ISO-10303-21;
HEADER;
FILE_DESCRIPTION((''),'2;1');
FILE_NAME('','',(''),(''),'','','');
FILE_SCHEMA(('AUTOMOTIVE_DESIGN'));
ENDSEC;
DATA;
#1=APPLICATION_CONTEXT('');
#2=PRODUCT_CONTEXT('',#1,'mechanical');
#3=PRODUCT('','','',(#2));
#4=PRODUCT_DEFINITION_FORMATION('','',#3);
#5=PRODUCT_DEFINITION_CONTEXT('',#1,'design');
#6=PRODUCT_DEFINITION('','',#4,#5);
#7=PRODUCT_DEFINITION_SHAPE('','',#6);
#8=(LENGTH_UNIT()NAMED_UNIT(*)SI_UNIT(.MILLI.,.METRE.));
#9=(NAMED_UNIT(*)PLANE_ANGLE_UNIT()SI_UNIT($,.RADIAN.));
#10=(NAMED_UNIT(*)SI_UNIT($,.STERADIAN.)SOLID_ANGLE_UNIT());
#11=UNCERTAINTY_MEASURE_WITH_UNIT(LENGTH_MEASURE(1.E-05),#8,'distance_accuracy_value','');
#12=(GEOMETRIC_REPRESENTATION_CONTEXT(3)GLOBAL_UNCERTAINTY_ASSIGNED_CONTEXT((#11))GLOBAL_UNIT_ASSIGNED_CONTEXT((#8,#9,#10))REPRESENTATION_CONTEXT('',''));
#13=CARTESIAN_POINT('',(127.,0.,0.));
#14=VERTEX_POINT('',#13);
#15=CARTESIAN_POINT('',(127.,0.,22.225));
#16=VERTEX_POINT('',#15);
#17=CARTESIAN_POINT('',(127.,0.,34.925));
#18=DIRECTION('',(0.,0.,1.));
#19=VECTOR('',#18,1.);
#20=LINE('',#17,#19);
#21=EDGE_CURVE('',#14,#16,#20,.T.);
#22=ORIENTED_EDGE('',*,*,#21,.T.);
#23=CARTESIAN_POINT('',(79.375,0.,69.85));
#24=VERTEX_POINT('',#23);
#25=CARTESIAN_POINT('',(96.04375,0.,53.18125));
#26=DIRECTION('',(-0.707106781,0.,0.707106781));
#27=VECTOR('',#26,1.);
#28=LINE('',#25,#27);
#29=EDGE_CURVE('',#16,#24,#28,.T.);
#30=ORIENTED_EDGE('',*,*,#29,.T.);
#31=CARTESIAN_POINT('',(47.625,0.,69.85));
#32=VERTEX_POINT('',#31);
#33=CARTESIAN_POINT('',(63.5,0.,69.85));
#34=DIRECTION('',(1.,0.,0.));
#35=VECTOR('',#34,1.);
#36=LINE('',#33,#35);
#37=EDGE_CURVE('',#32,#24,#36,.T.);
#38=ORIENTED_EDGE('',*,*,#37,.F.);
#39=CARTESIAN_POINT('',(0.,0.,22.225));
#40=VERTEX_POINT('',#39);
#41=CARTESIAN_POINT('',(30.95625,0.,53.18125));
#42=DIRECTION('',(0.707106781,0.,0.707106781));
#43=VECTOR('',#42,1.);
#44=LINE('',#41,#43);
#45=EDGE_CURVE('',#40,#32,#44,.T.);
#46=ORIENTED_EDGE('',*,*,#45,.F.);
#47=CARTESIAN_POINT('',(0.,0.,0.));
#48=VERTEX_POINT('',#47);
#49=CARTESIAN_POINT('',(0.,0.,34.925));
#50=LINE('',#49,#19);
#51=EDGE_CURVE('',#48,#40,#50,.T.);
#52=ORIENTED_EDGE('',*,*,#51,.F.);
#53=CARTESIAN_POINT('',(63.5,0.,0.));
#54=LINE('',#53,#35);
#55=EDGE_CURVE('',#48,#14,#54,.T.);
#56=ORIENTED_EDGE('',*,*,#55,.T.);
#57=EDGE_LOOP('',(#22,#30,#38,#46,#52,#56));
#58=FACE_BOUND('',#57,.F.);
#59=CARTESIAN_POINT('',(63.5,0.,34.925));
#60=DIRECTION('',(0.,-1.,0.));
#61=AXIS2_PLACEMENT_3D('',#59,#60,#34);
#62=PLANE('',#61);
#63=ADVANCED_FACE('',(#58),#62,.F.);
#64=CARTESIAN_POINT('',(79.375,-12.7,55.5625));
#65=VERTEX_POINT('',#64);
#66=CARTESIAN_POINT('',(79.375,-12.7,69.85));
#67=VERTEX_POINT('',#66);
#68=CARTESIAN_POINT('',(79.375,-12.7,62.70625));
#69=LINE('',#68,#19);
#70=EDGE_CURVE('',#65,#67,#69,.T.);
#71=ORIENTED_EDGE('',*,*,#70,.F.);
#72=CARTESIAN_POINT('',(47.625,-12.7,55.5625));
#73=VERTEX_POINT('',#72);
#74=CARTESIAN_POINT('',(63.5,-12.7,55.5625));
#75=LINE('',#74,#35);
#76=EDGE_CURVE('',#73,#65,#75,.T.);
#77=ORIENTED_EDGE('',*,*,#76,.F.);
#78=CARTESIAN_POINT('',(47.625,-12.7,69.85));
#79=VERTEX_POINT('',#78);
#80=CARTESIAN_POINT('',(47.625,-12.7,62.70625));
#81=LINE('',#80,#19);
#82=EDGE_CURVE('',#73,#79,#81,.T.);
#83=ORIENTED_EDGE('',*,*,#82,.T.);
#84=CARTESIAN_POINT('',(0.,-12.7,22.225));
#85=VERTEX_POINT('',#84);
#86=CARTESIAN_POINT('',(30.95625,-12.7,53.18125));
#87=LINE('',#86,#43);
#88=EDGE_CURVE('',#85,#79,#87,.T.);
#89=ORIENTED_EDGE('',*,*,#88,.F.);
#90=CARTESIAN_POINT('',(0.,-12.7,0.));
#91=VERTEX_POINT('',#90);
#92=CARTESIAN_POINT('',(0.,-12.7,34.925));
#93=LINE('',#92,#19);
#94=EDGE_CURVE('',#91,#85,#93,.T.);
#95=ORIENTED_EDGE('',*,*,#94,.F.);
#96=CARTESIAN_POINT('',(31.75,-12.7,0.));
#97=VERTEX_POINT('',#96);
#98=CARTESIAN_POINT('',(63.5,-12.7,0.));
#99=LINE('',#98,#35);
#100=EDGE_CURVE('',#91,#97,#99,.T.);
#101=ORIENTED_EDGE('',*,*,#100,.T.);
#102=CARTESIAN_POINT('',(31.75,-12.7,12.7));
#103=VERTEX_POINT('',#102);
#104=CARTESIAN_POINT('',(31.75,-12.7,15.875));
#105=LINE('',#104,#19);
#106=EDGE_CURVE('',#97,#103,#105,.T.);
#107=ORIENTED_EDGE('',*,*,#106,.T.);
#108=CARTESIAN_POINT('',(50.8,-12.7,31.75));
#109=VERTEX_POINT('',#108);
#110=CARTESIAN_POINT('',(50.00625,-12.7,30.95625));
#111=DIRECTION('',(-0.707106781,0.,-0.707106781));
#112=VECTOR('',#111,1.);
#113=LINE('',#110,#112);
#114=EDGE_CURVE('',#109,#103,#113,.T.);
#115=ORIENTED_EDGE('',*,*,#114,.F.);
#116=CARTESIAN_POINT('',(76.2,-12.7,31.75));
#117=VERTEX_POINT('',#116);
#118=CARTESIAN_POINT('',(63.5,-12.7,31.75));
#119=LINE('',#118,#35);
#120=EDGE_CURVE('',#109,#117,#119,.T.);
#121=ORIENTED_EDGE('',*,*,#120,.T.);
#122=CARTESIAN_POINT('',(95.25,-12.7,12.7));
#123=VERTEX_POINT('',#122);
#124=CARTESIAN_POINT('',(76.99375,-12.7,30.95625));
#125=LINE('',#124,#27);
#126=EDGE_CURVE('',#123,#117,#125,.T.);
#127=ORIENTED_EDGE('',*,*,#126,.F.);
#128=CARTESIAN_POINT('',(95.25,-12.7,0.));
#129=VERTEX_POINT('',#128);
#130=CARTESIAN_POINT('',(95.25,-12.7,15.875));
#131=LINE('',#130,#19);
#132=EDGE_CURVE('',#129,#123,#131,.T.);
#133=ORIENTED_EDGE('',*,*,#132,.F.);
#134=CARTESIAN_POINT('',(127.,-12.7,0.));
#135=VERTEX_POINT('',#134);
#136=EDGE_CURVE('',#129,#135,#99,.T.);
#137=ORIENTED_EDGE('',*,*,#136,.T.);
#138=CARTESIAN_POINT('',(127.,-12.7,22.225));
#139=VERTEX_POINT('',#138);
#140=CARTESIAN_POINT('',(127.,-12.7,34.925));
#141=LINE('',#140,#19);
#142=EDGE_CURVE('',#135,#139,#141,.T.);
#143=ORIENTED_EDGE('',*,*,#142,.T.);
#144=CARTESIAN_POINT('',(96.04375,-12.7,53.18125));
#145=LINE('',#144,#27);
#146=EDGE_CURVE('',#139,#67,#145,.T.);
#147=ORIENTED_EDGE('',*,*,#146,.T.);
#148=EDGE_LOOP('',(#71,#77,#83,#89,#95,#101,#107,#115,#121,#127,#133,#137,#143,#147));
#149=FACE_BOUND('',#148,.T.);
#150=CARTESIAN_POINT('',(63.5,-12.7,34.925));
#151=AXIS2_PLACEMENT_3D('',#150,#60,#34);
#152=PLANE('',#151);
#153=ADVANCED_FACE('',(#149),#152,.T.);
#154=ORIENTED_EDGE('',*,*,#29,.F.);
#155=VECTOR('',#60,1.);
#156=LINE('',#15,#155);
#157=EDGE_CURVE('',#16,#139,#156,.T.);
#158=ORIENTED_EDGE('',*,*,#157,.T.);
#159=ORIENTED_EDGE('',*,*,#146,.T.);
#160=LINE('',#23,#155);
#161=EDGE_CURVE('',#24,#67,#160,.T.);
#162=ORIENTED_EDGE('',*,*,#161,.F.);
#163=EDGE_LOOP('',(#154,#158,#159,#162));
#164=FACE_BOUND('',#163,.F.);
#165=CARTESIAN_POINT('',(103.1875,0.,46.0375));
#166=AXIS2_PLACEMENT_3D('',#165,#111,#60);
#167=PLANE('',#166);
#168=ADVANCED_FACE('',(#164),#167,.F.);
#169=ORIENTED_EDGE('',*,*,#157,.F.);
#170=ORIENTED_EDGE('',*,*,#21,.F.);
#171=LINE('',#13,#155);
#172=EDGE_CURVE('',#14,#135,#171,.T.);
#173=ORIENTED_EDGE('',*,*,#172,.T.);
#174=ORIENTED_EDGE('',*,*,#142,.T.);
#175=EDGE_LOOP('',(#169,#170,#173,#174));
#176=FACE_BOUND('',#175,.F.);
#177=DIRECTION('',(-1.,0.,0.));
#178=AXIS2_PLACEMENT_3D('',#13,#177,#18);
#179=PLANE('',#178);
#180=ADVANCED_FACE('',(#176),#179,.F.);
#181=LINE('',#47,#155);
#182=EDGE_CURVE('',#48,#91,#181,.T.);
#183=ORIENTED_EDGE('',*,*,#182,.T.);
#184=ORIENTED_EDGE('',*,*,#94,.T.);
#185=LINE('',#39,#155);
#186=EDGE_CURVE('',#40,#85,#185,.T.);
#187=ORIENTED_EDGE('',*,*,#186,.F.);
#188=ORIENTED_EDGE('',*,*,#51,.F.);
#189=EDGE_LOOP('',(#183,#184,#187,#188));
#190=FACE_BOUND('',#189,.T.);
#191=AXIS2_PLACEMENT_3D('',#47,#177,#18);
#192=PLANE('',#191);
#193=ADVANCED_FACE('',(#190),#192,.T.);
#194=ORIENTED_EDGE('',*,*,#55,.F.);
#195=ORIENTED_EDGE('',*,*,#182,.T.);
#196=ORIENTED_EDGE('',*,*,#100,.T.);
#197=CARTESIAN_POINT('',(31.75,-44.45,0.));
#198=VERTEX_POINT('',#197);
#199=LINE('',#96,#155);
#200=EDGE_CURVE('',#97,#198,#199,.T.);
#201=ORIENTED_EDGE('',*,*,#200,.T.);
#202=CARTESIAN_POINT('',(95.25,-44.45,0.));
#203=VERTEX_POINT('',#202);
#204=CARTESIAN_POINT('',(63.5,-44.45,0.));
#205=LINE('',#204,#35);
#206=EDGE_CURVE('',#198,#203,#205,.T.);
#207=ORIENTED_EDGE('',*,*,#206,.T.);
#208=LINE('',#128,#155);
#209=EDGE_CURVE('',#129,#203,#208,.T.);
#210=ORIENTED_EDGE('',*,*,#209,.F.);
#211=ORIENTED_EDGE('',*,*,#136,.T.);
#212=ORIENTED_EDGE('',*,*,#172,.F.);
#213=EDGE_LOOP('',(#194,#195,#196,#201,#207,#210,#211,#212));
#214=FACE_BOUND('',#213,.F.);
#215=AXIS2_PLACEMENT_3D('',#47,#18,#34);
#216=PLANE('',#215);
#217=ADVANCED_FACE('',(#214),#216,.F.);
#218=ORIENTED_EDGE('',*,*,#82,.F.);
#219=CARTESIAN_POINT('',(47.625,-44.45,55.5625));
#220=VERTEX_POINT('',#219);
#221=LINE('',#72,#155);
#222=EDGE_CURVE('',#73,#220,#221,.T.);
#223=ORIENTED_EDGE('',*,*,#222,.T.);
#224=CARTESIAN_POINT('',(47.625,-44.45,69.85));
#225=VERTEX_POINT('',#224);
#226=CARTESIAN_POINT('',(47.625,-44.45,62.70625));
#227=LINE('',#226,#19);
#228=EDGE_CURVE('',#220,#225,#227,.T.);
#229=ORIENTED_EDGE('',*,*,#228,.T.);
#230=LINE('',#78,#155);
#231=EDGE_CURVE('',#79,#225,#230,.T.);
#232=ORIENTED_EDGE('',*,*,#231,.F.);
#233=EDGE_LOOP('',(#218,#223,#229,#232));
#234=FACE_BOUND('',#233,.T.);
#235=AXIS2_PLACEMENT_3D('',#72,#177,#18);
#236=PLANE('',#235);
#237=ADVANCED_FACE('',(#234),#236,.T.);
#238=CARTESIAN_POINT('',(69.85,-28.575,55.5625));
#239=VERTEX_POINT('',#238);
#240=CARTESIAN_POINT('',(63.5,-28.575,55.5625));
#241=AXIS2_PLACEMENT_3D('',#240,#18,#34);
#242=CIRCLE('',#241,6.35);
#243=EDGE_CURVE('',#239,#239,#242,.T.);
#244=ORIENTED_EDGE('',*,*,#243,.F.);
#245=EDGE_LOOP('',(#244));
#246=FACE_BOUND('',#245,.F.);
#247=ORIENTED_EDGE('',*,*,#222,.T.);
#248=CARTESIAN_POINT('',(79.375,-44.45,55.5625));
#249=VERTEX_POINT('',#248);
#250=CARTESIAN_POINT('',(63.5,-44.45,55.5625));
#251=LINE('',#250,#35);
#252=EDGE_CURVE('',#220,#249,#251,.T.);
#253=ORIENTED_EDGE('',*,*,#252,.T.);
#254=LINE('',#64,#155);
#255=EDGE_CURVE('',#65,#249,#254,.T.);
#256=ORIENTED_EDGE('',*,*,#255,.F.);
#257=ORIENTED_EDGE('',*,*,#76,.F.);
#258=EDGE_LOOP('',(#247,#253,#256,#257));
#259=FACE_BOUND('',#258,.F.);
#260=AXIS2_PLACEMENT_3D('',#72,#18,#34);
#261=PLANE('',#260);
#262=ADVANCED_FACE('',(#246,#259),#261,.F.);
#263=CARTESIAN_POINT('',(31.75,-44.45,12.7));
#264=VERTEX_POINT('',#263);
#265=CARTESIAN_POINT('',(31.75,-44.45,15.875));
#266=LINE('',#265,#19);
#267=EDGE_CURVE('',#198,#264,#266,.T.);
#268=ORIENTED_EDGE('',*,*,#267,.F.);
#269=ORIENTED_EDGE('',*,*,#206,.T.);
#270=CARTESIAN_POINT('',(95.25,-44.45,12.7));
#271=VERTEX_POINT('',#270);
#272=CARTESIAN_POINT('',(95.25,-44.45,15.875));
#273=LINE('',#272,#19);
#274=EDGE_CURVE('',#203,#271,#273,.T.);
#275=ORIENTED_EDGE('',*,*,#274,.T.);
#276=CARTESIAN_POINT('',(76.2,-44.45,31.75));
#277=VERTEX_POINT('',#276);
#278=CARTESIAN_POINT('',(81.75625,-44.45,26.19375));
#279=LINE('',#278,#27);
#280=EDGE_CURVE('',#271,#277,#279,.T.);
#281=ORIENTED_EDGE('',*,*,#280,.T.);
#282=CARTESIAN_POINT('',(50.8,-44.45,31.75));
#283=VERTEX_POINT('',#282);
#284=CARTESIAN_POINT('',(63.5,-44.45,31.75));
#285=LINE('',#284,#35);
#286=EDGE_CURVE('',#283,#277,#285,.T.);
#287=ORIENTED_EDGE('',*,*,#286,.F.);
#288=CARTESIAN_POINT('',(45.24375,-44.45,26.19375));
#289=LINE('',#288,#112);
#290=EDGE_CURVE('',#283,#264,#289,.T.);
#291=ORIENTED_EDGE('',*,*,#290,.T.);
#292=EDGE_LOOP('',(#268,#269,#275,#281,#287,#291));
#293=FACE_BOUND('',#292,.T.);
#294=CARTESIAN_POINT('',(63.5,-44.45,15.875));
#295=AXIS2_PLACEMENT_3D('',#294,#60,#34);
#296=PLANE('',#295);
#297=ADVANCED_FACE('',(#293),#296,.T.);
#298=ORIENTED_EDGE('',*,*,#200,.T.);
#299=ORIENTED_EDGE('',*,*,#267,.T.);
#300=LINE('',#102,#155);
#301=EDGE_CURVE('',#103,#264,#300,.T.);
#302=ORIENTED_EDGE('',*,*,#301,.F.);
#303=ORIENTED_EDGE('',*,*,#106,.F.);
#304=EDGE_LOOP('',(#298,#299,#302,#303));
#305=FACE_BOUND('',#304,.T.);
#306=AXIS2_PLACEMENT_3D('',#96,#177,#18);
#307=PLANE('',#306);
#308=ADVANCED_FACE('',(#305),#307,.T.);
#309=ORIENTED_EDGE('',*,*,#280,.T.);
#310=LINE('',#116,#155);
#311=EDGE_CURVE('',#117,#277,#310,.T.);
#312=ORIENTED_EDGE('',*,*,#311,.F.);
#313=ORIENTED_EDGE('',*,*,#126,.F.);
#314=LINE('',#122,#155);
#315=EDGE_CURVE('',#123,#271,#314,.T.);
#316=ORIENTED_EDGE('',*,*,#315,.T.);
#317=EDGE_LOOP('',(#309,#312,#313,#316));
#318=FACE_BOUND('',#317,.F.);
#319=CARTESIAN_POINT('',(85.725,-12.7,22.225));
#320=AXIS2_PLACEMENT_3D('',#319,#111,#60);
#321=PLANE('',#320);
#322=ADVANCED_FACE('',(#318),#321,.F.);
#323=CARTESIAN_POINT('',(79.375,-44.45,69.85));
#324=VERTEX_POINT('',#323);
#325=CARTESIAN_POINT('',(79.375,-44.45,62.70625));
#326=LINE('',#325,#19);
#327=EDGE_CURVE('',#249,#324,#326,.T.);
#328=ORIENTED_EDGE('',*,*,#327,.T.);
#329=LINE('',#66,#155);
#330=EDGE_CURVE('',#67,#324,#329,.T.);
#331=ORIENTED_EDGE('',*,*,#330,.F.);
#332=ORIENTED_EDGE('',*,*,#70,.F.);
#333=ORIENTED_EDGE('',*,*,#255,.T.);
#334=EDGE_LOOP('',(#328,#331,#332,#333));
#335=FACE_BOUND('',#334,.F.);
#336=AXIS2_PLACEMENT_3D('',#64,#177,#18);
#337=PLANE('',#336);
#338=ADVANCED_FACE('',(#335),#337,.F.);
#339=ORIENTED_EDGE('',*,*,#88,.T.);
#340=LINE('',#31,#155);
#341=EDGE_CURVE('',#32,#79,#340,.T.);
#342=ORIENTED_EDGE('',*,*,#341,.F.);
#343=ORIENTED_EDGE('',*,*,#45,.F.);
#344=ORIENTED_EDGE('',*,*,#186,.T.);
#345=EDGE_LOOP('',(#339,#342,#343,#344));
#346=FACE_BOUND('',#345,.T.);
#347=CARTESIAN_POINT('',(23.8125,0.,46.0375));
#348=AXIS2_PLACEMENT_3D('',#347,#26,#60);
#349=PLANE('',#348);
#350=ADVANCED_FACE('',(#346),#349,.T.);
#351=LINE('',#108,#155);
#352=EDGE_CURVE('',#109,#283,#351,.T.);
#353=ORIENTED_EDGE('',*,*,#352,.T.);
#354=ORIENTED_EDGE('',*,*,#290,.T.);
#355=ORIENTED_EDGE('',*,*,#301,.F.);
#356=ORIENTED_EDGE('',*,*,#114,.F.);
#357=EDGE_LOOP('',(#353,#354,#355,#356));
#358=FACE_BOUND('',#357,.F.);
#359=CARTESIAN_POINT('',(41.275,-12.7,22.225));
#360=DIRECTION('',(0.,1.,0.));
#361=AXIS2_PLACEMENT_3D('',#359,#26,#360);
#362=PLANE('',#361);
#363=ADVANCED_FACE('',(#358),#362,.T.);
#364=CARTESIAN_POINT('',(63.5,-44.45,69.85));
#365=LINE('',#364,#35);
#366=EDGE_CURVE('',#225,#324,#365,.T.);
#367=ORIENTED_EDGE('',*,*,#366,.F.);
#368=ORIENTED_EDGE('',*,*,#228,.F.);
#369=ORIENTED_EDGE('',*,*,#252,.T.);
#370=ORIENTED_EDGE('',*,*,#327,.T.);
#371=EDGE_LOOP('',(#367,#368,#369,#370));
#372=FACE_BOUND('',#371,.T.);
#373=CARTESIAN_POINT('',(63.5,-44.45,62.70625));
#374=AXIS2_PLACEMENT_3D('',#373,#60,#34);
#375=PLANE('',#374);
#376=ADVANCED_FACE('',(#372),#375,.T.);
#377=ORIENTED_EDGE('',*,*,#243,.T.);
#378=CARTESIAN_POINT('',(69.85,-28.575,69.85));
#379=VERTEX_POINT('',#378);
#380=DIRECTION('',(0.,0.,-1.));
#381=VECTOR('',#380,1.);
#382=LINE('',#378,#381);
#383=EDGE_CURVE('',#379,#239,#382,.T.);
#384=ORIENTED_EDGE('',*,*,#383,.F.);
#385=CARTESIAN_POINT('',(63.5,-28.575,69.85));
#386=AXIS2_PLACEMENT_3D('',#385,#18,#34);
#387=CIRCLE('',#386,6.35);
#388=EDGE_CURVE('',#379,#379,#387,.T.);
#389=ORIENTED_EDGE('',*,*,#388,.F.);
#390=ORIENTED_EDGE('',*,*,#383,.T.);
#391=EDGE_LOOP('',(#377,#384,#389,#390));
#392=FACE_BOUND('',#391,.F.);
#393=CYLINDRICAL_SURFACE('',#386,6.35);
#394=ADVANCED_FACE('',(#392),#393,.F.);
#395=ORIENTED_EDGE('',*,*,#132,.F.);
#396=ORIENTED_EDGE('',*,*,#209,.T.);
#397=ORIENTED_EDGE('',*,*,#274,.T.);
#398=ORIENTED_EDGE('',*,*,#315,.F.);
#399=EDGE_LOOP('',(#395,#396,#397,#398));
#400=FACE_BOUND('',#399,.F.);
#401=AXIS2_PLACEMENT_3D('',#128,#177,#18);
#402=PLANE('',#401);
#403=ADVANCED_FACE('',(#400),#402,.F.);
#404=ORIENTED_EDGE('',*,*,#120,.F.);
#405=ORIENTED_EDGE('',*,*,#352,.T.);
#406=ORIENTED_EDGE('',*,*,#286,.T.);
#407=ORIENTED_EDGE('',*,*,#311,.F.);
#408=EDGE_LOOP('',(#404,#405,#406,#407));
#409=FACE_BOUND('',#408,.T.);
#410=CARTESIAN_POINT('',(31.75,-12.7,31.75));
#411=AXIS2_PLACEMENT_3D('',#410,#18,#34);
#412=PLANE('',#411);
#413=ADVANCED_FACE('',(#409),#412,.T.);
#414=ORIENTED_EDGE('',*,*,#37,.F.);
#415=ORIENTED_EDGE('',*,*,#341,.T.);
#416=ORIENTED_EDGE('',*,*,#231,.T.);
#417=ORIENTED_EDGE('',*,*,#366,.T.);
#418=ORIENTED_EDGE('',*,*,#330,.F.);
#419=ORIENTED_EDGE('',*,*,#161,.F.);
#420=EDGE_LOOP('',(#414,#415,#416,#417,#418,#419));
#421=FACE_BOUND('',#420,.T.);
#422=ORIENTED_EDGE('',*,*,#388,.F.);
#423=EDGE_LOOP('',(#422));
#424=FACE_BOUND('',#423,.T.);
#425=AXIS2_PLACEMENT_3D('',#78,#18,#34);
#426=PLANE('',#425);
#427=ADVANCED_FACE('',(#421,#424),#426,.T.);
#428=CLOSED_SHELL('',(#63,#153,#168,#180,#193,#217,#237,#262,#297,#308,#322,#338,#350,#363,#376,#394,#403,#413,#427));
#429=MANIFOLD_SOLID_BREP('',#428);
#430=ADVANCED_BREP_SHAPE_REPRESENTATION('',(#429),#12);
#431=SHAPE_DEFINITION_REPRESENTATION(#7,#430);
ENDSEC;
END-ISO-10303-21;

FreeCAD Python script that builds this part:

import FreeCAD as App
import Part
import Sketcher
Q = App.Units.Quantity


def edges_at(feature, points):
    """Names of the edges that pass closest to the given points."""
    edges = feature.Shape.Edges
    near = lambda p: min(range(len(edges)), key=lambda i: edges[i].distToShape(Part.Vertex(*p))[0])
    return sorted({f"Edge{near(p) + 1}" for p in points})


def add_polygon(sketch, points):
    """Adds a closed chain of lines whose ends are joined by coincident constraints."""
    first, n = sketch.GeometryCount, len(points)
    for a, b in zip(points, points[1:] + points[:1]):
        sketch.addGeometry(Part.LineSegment(App.Vector(*a, 0), App.Vector(*b, 0)), False)
    for i in range(n):
        sketch.addConstraint(Sketcher.Constraint("Coincident", first + i, 2, first + (i + 1) % n, 1))

doc = App.newDocument("Part")
params = doc.addObject("Spreadsheet::Sheet", "Params")
for row, (alias, value) in enumerate([
    ("sketch1_width", "5 in"),
    ("sketch1_height", "2.75 in"),
    ("pad1_length", "0.5 in"),
    ("chamfer_size", "1.875 in"),
    ("sketch2_width", "2.5 in"),
    ("sketch2_width2", "1.25 in"),
    ("sketch2_height", "0.5625 in"),
    ("pad2_length", "1.25 in"),
    ("chamfer2_size", "0.75 in"),
    ("sketch3_diameter", "0.5 in"),
    ("pocket1_length", "0.5625 in"),
], start=1):
    params.set(f"A{row}", alias)
    params.set(f"B{row}", "=" + value)
    params.setAlias(f"B{row}", alias)

body = doc.addObject("PartDesign::Body", "Body")

# Sketch on XZ plane
sketch1 = body.newObject("Sketcher::SketchObject", "Sketch")
sketch1.AttachmentSupport = (doc.getObject("XZ_Plane"), [""])
sketch1.MapMode = "FlatFace"
add_polygon(sketch1, [(0, 69.85), (0, 0), (127, 0), (127, 69.85)])  # lines 0-3
sketch1.addConstraint(Sketcher.Constraint("Vertical", 0))
sketch1.addConstraint(Sketcher.Constraint("Horizontal", 1))
sketch1.addConstraint(Sketcher.Constraint("Vertical", 2))
sketch1.addConstraint(Sketcher.Constraint("Horizontal", 3))
sketch1.addConstraint(Sketcher.Constraint("Coincident", 0, 2, -1, 1))
sketch1.addConstraint(Sketcher.Constraint("DistanceX", 1, 1, 1, 2, Q("5 in")))
sketch1.addConstraint(Sketcher.Constraint("DistanceY", 0, 2, 0, 1, Q("2.75 in")))
sketch1.setExpression("Constraints[9]", "Params.sketch1_width")
sketch1.setExpression("Constraints[10]", "Params.sketch1_height")
pad1 = body.newObject("PartDesign::Pad", "Pad")
pad1.Profile = sketch1
pad1.setExpression("Length", "Params.pad1_length")
doc.recompute()

chamfer = body.newObject("PartDesign::Chamfer", "Chamfer")
chamfer.Base = (pad1, edges_at(pad1, [(0, -6.35, 69.85), (127, -6.35, 69.85)]))
chamfer.setExpression("Size", "Params.chamfer_size")

# Sketch on XZ plane
sketch2 = body.newObject("Sketcher::SketchObject", "Sketch001")
sketch2.AttachmentSupport = (doc.getObject("XZ_Plane"), [""])
sketch2.MapMode = "FlatFace"
sketch2.AttachmentOffset = App.Placement(App.Vector(0, 0, 0.5 * 25.4), App.Rotation())
add_polygon(sketch2, [(47.625, 69.85), (47.625, 55.5625), (79.375, 55.5625), (79.375, 69.85)])  # lines 0-3
add_polygon(sketch2, [(31.75, 31.75), (31.75, 0), (95.25, 0), (95.25, 31.75)])  # lines 4-7
sketch2.addConstraint(Sketcher.Constraint("Vertical", 0))
sketch2.addConstraint(Sketcher.Constraint("Horizontal", 1))
sketch2.addConstraint(Sketcher.Constraint("Vertical", 2))
sketch2.addConstraint(Sketcher.Constraint("Horizontal", 3))
sketch2.addConstraint(Sketcher.Constraint("Vertical", 4))
sketch2.addConstraint(Sketcher.Constraint("Horizontal", 5))
sketch2.addConstraint(Sketcher.Constraint("Vertical", 6))
sketch2.addConstraint(Sketcher.Constraint("Horizontal", 7))
sketch2.addConstraint(Sketcher.Constraint("PointOnObject", 4, 2, -1))
sketch2.addConstraint(Sketcher.Constraint("Equal", 3, 4))
sketch2.addConstraint(Sketcher.Constraint("DistanceX", 5, 1, 5, 2, Q("2.5 in")))
sketch2.addConstraint(Sketcher.Constraint("DistanceX", 1, 1, 1, 2, Q("1.25 in")))
sketch2.addConstraint(Sketcher.Constraint("DistanceY", 6, 2, 2, 2, Q("1.5 in")))
sketch2.addConstraint(Sketcher.Constraint("DistanceY", 0, 2, 0, 1, Q("0.5625 in")))
sketch2.addConstraint(Sketcher.Constraint("DistanceX", -1, 1, 4, 2, Q("1.25 in")))
sketch2.addConstraint(Sketcher.Constraint("DistanceX", -1, 1, 0, 2, Q("1.875 in")))
sketch2.setExpression("Constraints[18]", "Params.sketch2_width")
sketch2.setExpression("Constraints[19]", "Params.sketch2_width2")
sketch2.setExpression("Constraints[21]", "Params.sketch2_height")
pad2 = body.newObject("PartDesign::Pad", "Pad001")
pad2.Profile = sketch2
pad2.setExpression("Length", "Params.pad2_length")
doc.recompute()

chamfer2 = body.newObject("PartDesign::Chamfer", "Chamfer001")
chamfer2.Base = (pad2, edges_at(pad2, [(31.75, -28.575, 31.75), (95.25, -28.575, 31.75)]))
chamfer2.setExpression("Size", "Params.chamfer2_size")

# Sketch on XY plane
sketch3 = body.newObject("Sketcher::SketchObject", "Sketch002")
sketch3.AttachmentSupport = (doc.getObject("XY_Plane"), [""])
sketch3.MapMode = "FlatFace"
sketch3.AttachmentOffset = App.Placement(App.Vector(0, 0, 2.75 * 25.4), App.Rotation())
sketch3.addGeometry(Part.Circle(App.Vector(63.5, -28.575, 0), App.Vector(0, 0, 1), 6.35), False)
sketch3.addConstraint(Sketcher.Constraint("Diameter", 0, Q("0.5 in")))
sketch3.addConstraint(Sketcher.Constraint("DistanceX", -1, 1, 0, 3, Q("2.5 in")))
sketch3.addConstraint(Sketcher.Constraint("DistanceY", 0, 3, -1, 1, Q("1.125 in")))
sketch3.setExpression("Constraints[0]", "Params.sketch3_diameter")
pocket1 = body.newObject("PartDesign::Pocket", "Pocket")
pocket1.Profile = sketch3
pocket1.setExpression("Length", "Params.pocket1_length")

doc.recompute()
